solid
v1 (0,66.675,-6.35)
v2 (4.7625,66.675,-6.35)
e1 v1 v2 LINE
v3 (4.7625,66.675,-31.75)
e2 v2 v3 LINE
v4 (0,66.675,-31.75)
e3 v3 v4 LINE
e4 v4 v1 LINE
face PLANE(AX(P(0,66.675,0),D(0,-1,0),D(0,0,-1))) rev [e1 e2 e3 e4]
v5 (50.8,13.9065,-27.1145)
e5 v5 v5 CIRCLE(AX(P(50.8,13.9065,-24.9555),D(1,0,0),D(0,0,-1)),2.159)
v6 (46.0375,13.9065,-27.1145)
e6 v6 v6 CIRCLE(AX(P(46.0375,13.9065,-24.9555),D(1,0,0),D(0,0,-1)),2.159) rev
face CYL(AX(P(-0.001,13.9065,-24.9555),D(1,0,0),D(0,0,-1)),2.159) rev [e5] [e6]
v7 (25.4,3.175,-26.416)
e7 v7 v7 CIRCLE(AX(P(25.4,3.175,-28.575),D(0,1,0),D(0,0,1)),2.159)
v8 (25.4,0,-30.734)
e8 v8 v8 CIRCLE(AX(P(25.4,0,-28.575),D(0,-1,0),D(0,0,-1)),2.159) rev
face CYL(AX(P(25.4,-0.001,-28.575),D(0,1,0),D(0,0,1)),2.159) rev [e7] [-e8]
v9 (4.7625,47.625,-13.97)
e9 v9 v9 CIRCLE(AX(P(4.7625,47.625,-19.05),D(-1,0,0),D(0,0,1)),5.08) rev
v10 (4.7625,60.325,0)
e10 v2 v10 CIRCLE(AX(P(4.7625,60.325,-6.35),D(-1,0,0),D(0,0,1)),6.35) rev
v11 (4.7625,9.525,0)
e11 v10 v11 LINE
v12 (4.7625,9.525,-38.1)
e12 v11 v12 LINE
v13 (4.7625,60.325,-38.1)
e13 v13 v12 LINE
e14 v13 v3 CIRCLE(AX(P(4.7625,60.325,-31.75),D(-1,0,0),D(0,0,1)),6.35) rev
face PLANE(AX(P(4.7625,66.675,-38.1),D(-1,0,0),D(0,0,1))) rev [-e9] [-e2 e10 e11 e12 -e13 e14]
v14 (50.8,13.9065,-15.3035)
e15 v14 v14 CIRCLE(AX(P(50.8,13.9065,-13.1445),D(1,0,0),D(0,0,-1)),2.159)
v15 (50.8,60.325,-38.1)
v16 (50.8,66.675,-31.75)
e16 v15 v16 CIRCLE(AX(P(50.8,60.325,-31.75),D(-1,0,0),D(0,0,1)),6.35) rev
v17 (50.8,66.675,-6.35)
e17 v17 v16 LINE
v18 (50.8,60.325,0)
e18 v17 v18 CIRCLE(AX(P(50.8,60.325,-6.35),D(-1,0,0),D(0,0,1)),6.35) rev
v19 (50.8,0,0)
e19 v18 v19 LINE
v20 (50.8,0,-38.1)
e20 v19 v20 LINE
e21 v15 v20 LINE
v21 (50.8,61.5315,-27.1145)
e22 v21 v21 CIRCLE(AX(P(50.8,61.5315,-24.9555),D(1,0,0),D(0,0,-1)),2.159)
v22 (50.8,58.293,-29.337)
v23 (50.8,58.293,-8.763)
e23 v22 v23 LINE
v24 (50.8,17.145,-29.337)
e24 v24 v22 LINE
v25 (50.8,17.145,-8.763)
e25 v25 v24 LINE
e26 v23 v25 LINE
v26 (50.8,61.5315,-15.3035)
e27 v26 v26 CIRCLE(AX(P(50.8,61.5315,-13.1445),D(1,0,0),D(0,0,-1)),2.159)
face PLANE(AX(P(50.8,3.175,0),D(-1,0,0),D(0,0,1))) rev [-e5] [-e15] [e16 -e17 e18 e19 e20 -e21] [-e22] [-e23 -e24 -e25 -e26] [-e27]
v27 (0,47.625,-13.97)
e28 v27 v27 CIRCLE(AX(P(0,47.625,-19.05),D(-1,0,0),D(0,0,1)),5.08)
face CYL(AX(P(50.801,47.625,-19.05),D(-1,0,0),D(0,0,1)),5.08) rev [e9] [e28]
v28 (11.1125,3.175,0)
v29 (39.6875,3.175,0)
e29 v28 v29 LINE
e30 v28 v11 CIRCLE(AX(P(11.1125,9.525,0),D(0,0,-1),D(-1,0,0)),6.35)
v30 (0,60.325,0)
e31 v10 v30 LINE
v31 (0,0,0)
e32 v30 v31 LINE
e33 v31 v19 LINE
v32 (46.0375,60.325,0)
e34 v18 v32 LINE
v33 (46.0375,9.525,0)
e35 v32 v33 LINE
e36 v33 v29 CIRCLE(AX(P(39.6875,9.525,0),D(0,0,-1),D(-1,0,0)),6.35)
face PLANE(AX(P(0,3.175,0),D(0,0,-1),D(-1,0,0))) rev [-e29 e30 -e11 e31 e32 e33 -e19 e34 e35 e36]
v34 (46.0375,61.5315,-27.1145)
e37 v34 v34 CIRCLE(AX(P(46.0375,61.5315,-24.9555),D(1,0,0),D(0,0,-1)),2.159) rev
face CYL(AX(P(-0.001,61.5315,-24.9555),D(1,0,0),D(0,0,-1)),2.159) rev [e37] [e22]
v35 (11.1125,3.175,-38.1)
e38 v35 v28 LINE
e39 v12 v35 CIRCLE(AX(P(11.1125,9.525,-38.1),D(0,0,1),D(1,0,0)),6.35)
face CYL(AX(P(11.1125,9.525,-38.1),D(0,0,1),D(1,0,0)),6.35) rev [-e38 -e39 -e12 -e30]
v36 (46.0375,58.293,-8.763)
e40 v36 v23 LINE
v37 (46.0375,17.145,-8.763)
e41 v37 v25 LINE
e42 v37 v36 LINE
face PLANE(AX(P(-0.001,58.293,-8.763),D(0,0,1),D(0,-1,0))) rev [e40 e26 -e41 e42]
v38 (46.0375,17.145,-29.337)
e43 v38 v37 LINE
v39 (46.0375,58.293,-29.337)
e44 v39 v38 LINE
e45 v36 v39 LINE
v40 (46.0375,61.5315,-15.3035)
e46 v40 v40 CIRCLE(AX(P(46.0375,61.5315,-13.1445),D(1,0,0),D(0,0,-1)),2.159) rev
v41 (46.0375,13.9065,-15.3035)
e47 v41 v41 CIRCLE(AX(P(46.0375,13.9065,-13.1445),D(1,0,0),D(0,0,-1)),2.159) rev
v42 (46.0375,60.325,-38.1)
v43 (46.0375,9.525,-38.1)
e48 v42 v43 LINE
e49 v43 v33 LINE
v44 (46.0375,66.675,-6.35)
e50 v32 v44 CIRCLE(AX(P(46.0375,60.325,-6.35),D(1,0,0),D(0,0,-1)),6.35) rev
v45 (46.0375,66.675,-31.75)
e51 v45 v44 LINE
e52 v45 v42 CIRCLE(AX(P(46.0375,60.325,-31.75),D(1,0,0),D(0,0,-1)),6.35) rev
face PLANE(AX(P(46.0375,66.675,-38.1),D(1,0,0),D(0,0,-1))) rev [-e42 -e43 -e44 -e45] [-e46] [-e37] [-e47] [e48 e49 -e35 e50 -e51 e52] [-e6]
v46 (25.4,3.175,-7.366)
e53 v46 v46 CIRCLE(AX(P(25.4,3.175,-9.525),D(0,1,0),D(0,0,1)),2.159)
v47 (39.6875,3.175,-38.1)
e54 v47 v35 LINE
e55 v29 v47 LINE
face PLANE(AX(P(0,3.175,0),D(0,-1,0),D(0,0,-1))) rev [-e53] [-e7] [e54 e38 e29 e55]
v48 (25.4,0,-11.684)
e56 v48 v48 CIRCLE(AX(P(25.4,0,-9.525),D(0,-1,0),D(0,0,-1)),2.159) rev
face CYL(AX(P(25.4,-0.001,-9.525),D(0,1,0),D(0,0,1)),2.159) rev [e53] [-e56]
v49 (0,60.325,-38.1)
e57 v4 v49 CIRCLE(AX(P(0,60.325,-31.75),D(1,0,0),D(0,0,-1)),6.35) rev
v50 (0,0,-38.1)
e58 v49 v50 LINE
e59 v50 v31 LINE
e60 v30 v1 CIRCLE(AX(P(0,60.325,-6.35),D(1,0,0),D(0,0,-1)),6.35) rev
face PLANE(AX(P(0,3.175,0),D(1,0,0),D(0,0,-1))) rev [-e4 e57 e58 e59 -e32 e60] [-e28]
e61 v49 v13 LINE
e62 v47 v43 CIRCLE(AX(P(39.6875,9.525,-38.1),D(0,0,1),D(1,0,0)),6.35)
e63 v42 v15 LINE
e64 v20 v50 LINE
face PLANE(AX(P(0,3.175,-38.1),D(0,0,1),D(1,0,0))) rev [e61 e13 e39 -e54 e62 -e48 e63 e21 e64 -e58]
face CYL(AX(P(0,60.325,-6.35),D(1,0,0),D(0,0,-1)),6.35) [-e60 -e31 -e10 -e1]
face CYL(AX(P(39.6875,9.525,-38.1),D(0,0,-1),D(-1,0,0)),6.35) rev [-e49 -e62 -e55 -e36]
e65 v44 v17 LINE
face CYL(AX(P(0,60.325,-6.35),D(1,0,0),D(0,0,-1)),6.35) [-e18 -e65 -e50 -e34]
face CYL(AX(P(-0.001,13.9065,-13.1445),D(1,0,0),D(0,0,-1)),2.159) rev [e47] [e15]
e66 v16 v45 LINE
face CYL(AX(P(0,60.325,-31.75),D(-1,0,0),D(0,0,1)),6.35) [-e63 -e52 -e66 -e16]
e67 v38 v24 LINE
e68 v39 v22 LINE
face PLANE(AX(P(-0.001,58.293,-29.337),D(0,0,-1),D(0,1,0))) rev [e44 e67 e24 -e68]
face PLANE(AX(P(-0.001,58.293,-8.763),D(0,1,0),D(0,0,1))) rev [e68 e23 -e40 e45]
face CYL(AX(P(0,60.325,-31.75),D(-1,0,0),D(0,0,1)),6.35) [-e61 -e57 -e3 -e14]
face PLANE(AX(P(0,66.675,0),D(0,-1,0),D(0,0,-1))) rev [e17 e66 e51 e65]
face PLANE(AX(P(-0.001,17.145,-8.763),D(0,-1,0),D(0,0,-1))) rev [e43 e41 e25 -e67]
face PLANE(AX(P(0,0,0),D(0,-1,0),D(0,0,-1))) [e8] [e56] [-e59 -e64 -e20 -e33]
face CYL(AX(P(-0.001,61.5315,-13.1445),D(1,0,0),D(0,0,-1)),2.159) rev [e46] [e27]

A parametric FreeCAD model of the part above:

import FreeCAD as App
import Part
import Sketcher
Q = App.Units.Quantity


def edges_at(feature, points):
    """Names of the edges that pass closest to the given points."""
    edges = feature.Shape.Edges
    near = lambda p: min(range(len(edges)), key=lambda i: edges[i].distToShape(Part.Vertex(*p))[0])
    return sorted({f"Edge{near(p) + 1}" for p in points})

doc = App.newDocument("Part")
params = doc.addObject("Spreadsheet::Sheet", "Params")
for row, (alias, value) in enumerate([
    ("sketch1_width", "2 in"),
    ("sketch1_height", "1.5 in"),
    ("pad1_length", "0.125 in"),
    ("sketch2_height", "1.5 in"),
    ("sketch2_width", "0.1875 in"),
    ("pad2_length", "2.5 in"),
    ("fillet_radius", "0.25 in"),
    ("sketch3_diameter", "0.17 in"),
    ("sketch4_diameter", "0.17 in"),
    ("sketch5_diameter", "0.17 in"),
    ("sketch6_diameter", "0.17 in"),
    ("sketch7_width", "1.62 in"),
    ("sketch7_height", "0.81 in"),
    ("sketch8_diameter", "0.17 in"),
    ("sketch9_diameter", "0.17 in"),
    ("sketch10_diameter", "0.4 in"),
], start=1):
    params.set(f"A{row}", alias)
    params.set(f"B{row}", "=" + value)
    params.setAlias(f"B{row}", alias)

body = doc.addObject("PartDesign::Body", "Body")

# Sketch on XZ plane
sketch1 = body.newObject("Sketcher::SketchObject", "Sketch")
sketch1.AttachmentSupport = (doc.getObject("XZ_Plane"), [""])
sketch1.MapMode = "FlatFace"
sketch1.addGeometry([
    Part.LineSegment(App.Vector(0, -38, 0), App.Vector(0, 0, 0)),
    Part.LineSegment(App.Vector(0, 0, 0), App.Vector(51, 0, 0)),
    Part.LineSegment(App.Vector(51, 0, 0), App.Vector(51, -38, 0)),
    Part.LineSegment(App.Vector(51, -38, 0), App.Vector(0, -38, 0)),
], False)
sketch1.addConstraint([
    Sketcher.Constraint("Coincident", 0, 2, 1, 1),
    Sketcher.Constraint("Coincident", 1, 2, 2, 1),
    Sketcher.Constraint("Coincident", 2, 2, 3, 1),
    Sketcher.Constraint("Coincident", 3, 2, 0, 1),
    Sketcher.Constraint("Vertical", 0),
    Sketcher.Constraint("Horizontal", 1),
    Sketcher.Constraint("Vertical", 2),
    Sketcher.Constraint("Horizontal", 3),
    Sketcher.Constraint("Coincident", 0, 2, -1, 1),
    Sketcher.Constraint("DistanceX", 1, 1, 1, 2, Q("2 in")),
    Sketcher.Constraint("DistanceY", 0, 1, 0, 2, Q("1.5 in")),
])
sketch1.setExpression("Constraints[9]", "Params.sketch1_width")
sketch1.setExpression("Constraints[10]", "Params.sketch1_height")
pad1 = body.newObject("PartDesign::Pad", "Pad")
pad1.Profile = sketch1
pad1.setExpression("Length", "Params.pad1_length")
pad1.Reversed = True

# Sketch on XZ plane
sketch2 = body.newObject("Sketcher::SketchObject", "Sketch001")
sketch2.AttachmentSupport = (doc.getObject("XZ_Plane"), [""])
sketch2.MapMode = "FlatFace"
sketch2.AttachmentOffset = App.Placement(App.Vector(0, 0, -0.125 * 25.4), App.Rotation())
sketch2.addGeometry([
    Part.LineSegment(App.Vector(46, -38.1, 0), App.Vector(46, 0, 0)),  # 0
    Part.LineSegment(App.Vector(46, 0, 0), App.Vector(50.8, 0, 0)),  # 1
    Part.LineSegment(App.Vector(50.8, 0, 0), App.Vector(50.8, -38.1, 0)),  # 2
    Part.LineSegment(App.Vector(50.8, -38.1, 0), App.Vector(46, -38.1, 0)),  # 3
    Part.LineSegment(App.Vector(0, -38.1, 0), App.Vector(0, 0, 0)),  # 4
    Part.LineSegment(App.Vector(0, 0, 0), App.Vector(4.8, 0, 0)),  # 5
    Part.LineSegment(App.Vector(4.8, 0, 0), App.Vector(4.8, -38.1, 0)),  # 6
    Part.LineSegment(App.Vector(4.8, -38.1, 0), App.Vector(0, -38.1, 0)),  # 7
], False)
sketch2.addConstraint([
    Sketcher.Constraint("Coincident", 0, 2, 1, 1),
    Sketcher.Constraint("Coincident", 1, 2, 2, 1),
    Sketcher.Constraint("Coincident", 2, 2, 3, 1),
    Sketcher.Constraint("Coincident", 3, 2, 0, 1),
    Sketcher.Constraint("Coincident", 4, 2, 5, 1),
    Sketcher.Constraint("Coincident", 5, 2, 6, 1),
    Sketcher.Constraint("Coincident", 6, 2, 7, 1),
    Sketcher.Constraint("Coincident", 7, 2, 4, 1),
    Sketcher.Constraint("Vertical", 0),
    Sketcher.Constraint("Horizontal", 1),
    Sketcher.Constraint("Vertical", 2),
    Sketcher.Constraint("Horizontal", 3),
    Sketcher.Constraint("Vertical", 4),
    Sketcher.Constraint("Horizontal", 5),
    Sketcher.Constraint("Vertical", 6),
    Sketcher.Constraint("Horizontal", 7),
    Sketcher.Constraint("Coincident", 4, 2, -1, 1),
    Sketcher.Constraint("PointOnObject", 0, 2, -1),
    Sketcher.Constraint("Horizontal", 3, 2, 6, 2),
    Sketcher.Constraint("Equal", 3, 5),
    Sketcher.Constraint("DistanceY", 0, 1, 0, 2, Q("1.5 in")),
    Sketcher.Constraint("DistanceX", -1, 1, 1, 2, Q("2 in")),
    Sketcher.Constraint("DistanceX", 1, 1, 1, 2, Q("0.1875 in")),
])
sketch2.setExpression("Constraints[20]", "Params.sketch2_height")
sketch2.setExpression("Constraints[22]", "Params.sketch2_width")
pad2 = body.newObject("PartDesign::Pad", "Pad001")
pad2.Profile = sketch2
pad2.setExpression("Length", "Params.pad2_length")
pad2.Reversed = True
doc.recompute()

fillet = body.newObject("PartDesign::Fillet", "Fillet")
fillet.Base = (pad2, edges_at(pad2, [
    (46.038, 3.175, -19.05),
    (48.419, 66.675, -38.1),
    (48.419, 66.675, 0),
    (4.763, 3.175, -19.05),
    (2.381, 66.675, -38.1),
    (2.381, 66.675, 0),
]))
fillet.setExpression("Radius", "Params.fillet_radius")

# Sketch on YZ plane
sketch3 = body.newObject("Sketcher::SketchObject", "Sketch002")
sketch3.AttachmentSupport = (doc.getObject("YZ_Plane"), [""])
sketch3.MapMode = "FlatFace"
sketch3.AttachmentOffset = App.Placement(App.Vector(0, 0, 2 * 25.4), App.Rotation())
sketch3.addGeometry(Part.Circle(App.Vector(61.5, -25, 0), App.Vector(0, 0, 1), 2.2), False)
sketch3.addConstraint([
    Sketcher.Constraint("Diameter", 0, Q("0.17 in")),
    Sketcher.Constraint("DistanceX", -1, 1, 0, 3, Q("2.4225 in")),
    Sketcher.Constraint("DistanceY", 0, 3, -1, 1, Q("0.9825 in")),
])
sketch3.setExpression("Constraints[0]", "Params.sketch3_diameter")
pocket1 = body.newObject("PartDesign::Pocket", "Pocket")
pocket1.Profile = sketch3
pocket1.Type = "UpToFirst"

# Sketch on YZ plane
sketch4 = body.newObject("Sketcher::SketchObject", "Sketch003")
sketch4.AttachmentSupport = (doc.getObject("YZ_Plane"), [""])
sketch4.MapMode = "FlatFace"
sketch4.AttachmentOffset = App.Placement(App.Vector(0, 0, 2 * 25.4), App.Rotation())
sketch4.addGeometry(Part.Circle(App.Vector(61.5, -13.1, 0), App.Vector(0, 0, 1), 2.2), False)
sketch4.addConstraint([
    Sketcher.Constraint("Diameter", 0, Q("0.17 in")),
    Sketcher.Constraint("DistanceX", -1, 1, 0, 3, Q("2.4225 in")),
    Sketcher.Constraint("DistanceY", 0, 3, -1, 1, Q("0.5175 in")),
])
sketch4.setExpression("Constraints[0]", "Params.sketch4_diameter")
pocket2 = body.newObject("PartDesign::Pocket", "Pocket001")
pocket2.Profile = sketch4
pocket2.Type = "UpToFirst"

# Sketch on YZ plane
sketch5 = body.newObject("Sketcher::SketchObject", "Sketch004")
sketch5.AttachmentSupport = (doc.getObject("YZ_Plane"), [""])
sketch5.MapMode = "FlatFace"
sketch5.AttachmentOffset = App.Placement(App.Vector(0, 0, 2 * 25.4), App.Rotation())
sketch5.addGeometry(Part.Circle(App.Vector(13.9, -13.1, 0), App.Vector(0, 0, 1), 2.2), False)
sketch5.addConstraint([
    Sketcher.Constraint("Diameter", 0, Q("0.17 in")),
    Sketcher.Constraint("DistanceX", -1, 1, 0, 3, Q("0.5475 in")),
    Sketcher.Constraint("DistanceY", 0, 3, -1, 1, Q("0.5175 in")),
])
sketch5.setExpression("Constraints[0]", "Params.sketch5_diameter")
pocket3 = body.newObject("PartDesign::Pocket", "Pocket002")
pocket3.Profile = sketch5
pocket3.Type = "UpToFirst"

# Sketch on YZ plane
sketch6 = body.newObject("Sketcher::SketchObject", "Sketch005")
sketch6.AttachmentSupport = (doc.getObject("YZ_Plane"), [""])
sketch6.MapMode = "FlatFace"
sketch6.AttachmentOffset = App.Placement(App.Vector(0, 0, 2 * 25.4), App.Rotation())
sketch6.addGeometry(Part.Circle(App.Vector(13.9, -25, 0), App.Vector(0, 0, 1), 2.2), False)
sketch6.addConstraint([
    Sketcher.Constraint("Diameter", 0, Q("0.17 in")),
    Sketcher.Constraint("DistanceX", -1, 1, 0, 3, Q("0.5475 in")),
    Sketcher.Constraint("DistanceY", 0, 3, -1, 1, Q("0.9825 in")),
])
sketch6.setExpression("Constraints[0]", "Params.sketch6_diameter")
pocket4 = body.newObject("PartDesign::Pocket", "Pocket003")
pocket4.Profile = sketch6
pocket4.Type = "UpToFirst"

# Sketch on YZ plane
sketch7 = body.newObject("Sketcher::SketchObject", "Sketch006")
sketch7.AttachmentSupport = (doc.getObject("YZ_Plane"), [""])
sketch7.MapMode = "FlatFace"
sketch7.AttachmentOffset = App.Placement(App.Vector(0, 0, 2 * 25.4), App.Rotation())
sketch7.addGeometry([
    Part.LineSegment(App.Vector(58, -9, 0), App.Vector(17, -9, 0)),
    Part.LineSegment(App.Vector(17, -9, 0), App.Vector(17, -29, 0)),
    Part.LineSegment(App.Vector(17, -29, 0), App.Vector(58, -29, 0)),
    Part.LineSegment(App.Vector(58, -29, 0), App.Vector(58, -9, 0)),
], False)
sketch7.addConstraint([
    Sketcher.Constraint("Coincident", 0, 2, 1, 1),
    Sketcher.Constraint("Coincident", 1, 2, 2, 1),
    Sketcher.Constraint("Coincident", 2, 2, 3, 1),
    Sketcher.Constraint("Coincident", 3, 2, 0, 1),
    Sketcher.Constraint("Horizontal", 0),
    Sketcher.Constraint("Vertical", 1),
    Sketcher.Constraint("Horizontal", 2),
    Sketcher.Constraint("Vertical", 3),
    Sketcher.Constraint("DistanceX", 0, 2, 0, 1, Q("1.62 in")),
    Sketcher.Constraint("DistanceY", 1, 2, 1, 1, Q("0.81 in")),
    Sketcher.Constraint("DistanceX", -1, 1, 0, 2, Q("0.675 in")),
    Sketcher.Constraint("DistanceY", 0, 2, -1, 1, Q("0.345 in")),
])
sketch7.setExpression("Constraints[8]", "Params.sketch7_width")
sketch7.setExpression("Constraints[9]", "Params.sketch7_height")
pocket5 = body.newObject("PartDesign::Pocket", "Pocket004")
pocket5.Profile = sketch7
pocket5.Type = "UpToFirst"

# Sketch on XZ plane
sketch8 = body.newObject("Sketcher::SketchObject", "Sketch007")
sketch8.AttachmentSupport = (doc.getObject("XZ_Plane"), [""])
sketch8.MapMode = "FlatFace"
sketch8.AttachmentOffset = App.Placement(App.Vector(0, 0, -0.125 * 25.4), App.Rotation())
sketch8.addGeometry(Part.Circle(App.Vector(25.4, -28.6, 0), App.Vector(0, 0, 1), 2.2), False)
sketch8.addConstraint([
    Sketcher.Constraint("Diameter", 0, Q("0.17 in")),
    Sketcher.Constraint("DistanceX", -1, 1, 0, 3, Q("1 in")),
    Sketcher.Constraint("DistanceY", 0, 3, -1, 1, Q("1.125 in")),
])
sketch8.setExpression("Constraints[0]", "Params.sketch8_diameter")
pocket6 = body.newObject("PartDesign::Pocket", "Pocket005")
pocket6.Profile = sketch8
pocket6.Type = "UpToFirst"
pocket6.Reversed = True

# Sketch on XZ plane
sketch9 = body.newObject("Sketcher::SketchObject", "Sketch008")
sketch9.AttachmentSupport = (doc.getObject("XZ_Plane"), [""])
sketch9.MapMode = "FlatFace"
sketch9.AttachmentOffset = App.Placement(App.Vector(0, 0, -0.125 * 25.4), App.Rotation())
sketch9.addGeometry(Part.Circle(App.Vector(25.4, -9.5, 0), App.Vector(0, 0, 1), 2.2), False)
sketch9.addConstraint([
    Sketcher.Constraint("Diameter", 0, Q("0.17 in")),
    Sketcher.Constraint("DistanceX", -1, 1, 0, 3, Q("1 in")),
    Sketcher.Constraint("DistanceY", 0, 3, -1, 1, Q("0.375 in")),
])
sketch9.setExpression("Constraints[0]", "Params.sketch9_diameter")
pocket7 = body.newObject("PartDesign::Pocket", "Pocket006")
pocket7.Profile = sketch9
pocket7.Type = "UpToFirst"
pocket7.Reversed = True

# Sketch on YZ plane
sketch10 = body.newObject("Sketcher::SketchObject", "Sketch009")
sketch10.AttachmentSupport = (doc.getObject("YZ_Plane"), [""])
sketch10.MapMode = "FlatFace"
sketch10.addGeometry(Part.Circle(App.Vector(48, -19, 0), App.Vector(0, 0, 1), 5), False)
sketch10.addConstraint([
    Sketcher.Constraint("Diameter", 0, Q("0.4 in")),
    Sketcher.Constraint("DistanceY", 0, 3, -1, 1, Q("0.75 in")),
    Sketcher.Constraint("DistanceX", -1, 1, 0, 3, Q("1.875 in")),
])
sketch10.setExpression("Constraints[0]", "Params.sketch10_diameter")
pocket8 = body.newObject("PartDesign::Pocket", "Pocket007")
pocket8.Profile = sketch10
pocket8.Type = "UpToFirst"
pocket8.Reversed = True

doc.recompute()
